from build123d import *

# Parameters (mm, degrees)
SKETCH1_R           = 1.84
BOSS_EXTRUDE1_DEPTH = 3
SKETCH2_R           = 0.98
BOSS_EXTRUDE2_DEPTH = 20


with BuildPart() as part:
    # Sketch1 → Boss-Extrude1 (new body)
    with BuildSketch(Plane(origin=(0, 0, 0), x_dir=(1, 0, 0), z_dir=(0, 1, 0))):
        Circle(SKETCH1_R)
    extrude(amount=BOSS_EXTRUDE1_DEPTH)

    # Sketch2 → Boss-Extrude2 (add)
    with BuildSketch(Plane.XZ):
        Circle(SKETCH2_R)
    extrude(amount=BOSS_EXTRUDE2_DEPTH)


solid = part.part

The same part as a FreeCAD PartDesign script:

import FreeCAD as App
import Part
import Sketcher

V = App.Vector

doc = App.newDocument("Part")
body = doc.addObject("PartDesign::Body", "Body")

# Sketch on XZ plane
sketch1 = body.newObject("Sketcher::SketchObject", "Sketch")
sketch1.AttachmentSupport = (doc.getObject("XZ_Plane"), [""])
sketch1.MapMode = "FlatFace"
sketch1.addGeometry(Part.Circle(V(0, 0, 0), V(0, 0, 1), 1.8), False)
sketch1.addConstraint([
    Sketcher.Constraint("Coincident", 0, 3, -1, 1),
    Sketcher.Constraint("Diameter", 0, 3.68),
])
pad1 = body.newObject("PartDesign::Pad", "Pad")
pad1.Profile = sketch1
pad1.Length = 3
pad1.Reversed = True

# Sketch on XZ plane
sketch2 = body.newObject("Sketcher::SketchObject", "Sketch001")
sketch2.AttachmentSupport = (doc.getObject("XZ_Plane"), [""])
sketch2.MapMode = "FlatFace"
sketch2.addGeometry(Part.Circle(V(0, 0, 0), V(0, 0, 1), 1), False)
sketch2.addConstraint([
    Sketcher.Constraint("Coincident", 0, 3, -1, 1),
    Sketcher.Constraint("Diameter", 0, 1.96),
])
pad2 = body.newObject("PartDesign::Pad", "Pad001")
pad2.Profile = sketch2
pad2.Length = 20

doc.recompute()
